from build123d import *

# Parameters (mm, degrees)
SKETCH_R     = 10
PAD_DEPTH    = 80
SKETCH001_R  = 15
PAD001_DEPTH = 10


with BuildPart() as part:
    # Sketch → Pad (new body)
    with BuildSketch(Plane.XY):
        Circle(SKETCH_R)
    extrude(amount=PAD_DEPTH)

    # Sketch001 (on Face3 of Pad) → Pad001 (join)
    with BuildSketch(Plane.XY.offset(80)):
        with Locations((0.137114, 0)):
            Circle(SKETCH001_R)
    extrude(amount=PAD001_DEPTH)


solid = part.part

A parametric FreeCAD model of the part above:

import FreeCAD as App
import Part
import Sketcher
Q = App.Units.Quantity

doc = App.newDocument("Part")
params = doc.addObject("Spreadsheet::Sheet", "Params")
for row, (alias, value) in enumerate([
    ("sketch1_diameter", "20 mm"),
    ("pad1_length", "80 mm"),
    ("sketch2_diameter", "30 mm"),
    ("pad2_length", "10 mm"),
], start=1):
    params.set(f"A{row}", alias)
    params.set(f"B{row}", "=" + value)
    params.setAlias(f"B{row}", alias)

body = doc.addObject("PartDesign::Body", "Body")

sketch1 = doc.addObject("Sketcher::SketchObject", "Sketch")
body.addObject(sketch1)
sketch1.AttachmentSupport = (doc.XY_Plane, [""])
sketch1.MapMode = "FlatFace"
sketch1.addGeometry(Part.Circle(App.Vector(0, 0, 0), App.Vector(0, 0, 1), 10), False)
sketch1.addConstraint(Sketcher.Constraint("Coincident", 0, 3, -1, 1))
sketch1.addConstraint(Sketcher.Constraint("Diameter", 0, Q("20 mm")))
sketch1.setExpression("Constraints[1]", "Params.sketch1_diameter")
pad1 = doc.addObject("PartDesign::Pad", "Pad")
body.addObject(pad1)
pad1.Profile = sketch1
pad1.setExpression("Length", "Params.pad1_length")

sketch2 = doc.addObject("Sketcher::SketchObject", "Sketch001")
body.addObject(sketch2)
sketch2.AttachmentSupport = (doc.XY_Plane, [""])
sketch2.MapMode = "FlatFace"
sketch2.AttachmentOffset = App.Placement(App.Vector(0, 0, 80), App.Rotation())
sketch2.addGeometry(Part.Circle(App.Vector(0.137114, 0, 0), App.Vector(0, 0, 1), 15), False)
sketch2.addConstraint(Sketcher.Constraint("PointOnObject", 0, 3, -1))
sketch2.addConstraint(Sketcher.Constraint("Diameter", 0, Q("30 mm")))
sketch2.addConstraint(Sketcher.Constraint("DistanceX", -1, 1, 0, 3, Q("0.137114 mm")))
sketch2.setExpression("Constraints[1]", "Params.sketch2_diameter")
pad2 = doc.addObject("PartDesign::Pad", "Pad001")
body.addObject(pad2)
pad2.Profile = sketch2
pad2.setExpression("Length", "Params.pad2_length")

doc.recompute()
